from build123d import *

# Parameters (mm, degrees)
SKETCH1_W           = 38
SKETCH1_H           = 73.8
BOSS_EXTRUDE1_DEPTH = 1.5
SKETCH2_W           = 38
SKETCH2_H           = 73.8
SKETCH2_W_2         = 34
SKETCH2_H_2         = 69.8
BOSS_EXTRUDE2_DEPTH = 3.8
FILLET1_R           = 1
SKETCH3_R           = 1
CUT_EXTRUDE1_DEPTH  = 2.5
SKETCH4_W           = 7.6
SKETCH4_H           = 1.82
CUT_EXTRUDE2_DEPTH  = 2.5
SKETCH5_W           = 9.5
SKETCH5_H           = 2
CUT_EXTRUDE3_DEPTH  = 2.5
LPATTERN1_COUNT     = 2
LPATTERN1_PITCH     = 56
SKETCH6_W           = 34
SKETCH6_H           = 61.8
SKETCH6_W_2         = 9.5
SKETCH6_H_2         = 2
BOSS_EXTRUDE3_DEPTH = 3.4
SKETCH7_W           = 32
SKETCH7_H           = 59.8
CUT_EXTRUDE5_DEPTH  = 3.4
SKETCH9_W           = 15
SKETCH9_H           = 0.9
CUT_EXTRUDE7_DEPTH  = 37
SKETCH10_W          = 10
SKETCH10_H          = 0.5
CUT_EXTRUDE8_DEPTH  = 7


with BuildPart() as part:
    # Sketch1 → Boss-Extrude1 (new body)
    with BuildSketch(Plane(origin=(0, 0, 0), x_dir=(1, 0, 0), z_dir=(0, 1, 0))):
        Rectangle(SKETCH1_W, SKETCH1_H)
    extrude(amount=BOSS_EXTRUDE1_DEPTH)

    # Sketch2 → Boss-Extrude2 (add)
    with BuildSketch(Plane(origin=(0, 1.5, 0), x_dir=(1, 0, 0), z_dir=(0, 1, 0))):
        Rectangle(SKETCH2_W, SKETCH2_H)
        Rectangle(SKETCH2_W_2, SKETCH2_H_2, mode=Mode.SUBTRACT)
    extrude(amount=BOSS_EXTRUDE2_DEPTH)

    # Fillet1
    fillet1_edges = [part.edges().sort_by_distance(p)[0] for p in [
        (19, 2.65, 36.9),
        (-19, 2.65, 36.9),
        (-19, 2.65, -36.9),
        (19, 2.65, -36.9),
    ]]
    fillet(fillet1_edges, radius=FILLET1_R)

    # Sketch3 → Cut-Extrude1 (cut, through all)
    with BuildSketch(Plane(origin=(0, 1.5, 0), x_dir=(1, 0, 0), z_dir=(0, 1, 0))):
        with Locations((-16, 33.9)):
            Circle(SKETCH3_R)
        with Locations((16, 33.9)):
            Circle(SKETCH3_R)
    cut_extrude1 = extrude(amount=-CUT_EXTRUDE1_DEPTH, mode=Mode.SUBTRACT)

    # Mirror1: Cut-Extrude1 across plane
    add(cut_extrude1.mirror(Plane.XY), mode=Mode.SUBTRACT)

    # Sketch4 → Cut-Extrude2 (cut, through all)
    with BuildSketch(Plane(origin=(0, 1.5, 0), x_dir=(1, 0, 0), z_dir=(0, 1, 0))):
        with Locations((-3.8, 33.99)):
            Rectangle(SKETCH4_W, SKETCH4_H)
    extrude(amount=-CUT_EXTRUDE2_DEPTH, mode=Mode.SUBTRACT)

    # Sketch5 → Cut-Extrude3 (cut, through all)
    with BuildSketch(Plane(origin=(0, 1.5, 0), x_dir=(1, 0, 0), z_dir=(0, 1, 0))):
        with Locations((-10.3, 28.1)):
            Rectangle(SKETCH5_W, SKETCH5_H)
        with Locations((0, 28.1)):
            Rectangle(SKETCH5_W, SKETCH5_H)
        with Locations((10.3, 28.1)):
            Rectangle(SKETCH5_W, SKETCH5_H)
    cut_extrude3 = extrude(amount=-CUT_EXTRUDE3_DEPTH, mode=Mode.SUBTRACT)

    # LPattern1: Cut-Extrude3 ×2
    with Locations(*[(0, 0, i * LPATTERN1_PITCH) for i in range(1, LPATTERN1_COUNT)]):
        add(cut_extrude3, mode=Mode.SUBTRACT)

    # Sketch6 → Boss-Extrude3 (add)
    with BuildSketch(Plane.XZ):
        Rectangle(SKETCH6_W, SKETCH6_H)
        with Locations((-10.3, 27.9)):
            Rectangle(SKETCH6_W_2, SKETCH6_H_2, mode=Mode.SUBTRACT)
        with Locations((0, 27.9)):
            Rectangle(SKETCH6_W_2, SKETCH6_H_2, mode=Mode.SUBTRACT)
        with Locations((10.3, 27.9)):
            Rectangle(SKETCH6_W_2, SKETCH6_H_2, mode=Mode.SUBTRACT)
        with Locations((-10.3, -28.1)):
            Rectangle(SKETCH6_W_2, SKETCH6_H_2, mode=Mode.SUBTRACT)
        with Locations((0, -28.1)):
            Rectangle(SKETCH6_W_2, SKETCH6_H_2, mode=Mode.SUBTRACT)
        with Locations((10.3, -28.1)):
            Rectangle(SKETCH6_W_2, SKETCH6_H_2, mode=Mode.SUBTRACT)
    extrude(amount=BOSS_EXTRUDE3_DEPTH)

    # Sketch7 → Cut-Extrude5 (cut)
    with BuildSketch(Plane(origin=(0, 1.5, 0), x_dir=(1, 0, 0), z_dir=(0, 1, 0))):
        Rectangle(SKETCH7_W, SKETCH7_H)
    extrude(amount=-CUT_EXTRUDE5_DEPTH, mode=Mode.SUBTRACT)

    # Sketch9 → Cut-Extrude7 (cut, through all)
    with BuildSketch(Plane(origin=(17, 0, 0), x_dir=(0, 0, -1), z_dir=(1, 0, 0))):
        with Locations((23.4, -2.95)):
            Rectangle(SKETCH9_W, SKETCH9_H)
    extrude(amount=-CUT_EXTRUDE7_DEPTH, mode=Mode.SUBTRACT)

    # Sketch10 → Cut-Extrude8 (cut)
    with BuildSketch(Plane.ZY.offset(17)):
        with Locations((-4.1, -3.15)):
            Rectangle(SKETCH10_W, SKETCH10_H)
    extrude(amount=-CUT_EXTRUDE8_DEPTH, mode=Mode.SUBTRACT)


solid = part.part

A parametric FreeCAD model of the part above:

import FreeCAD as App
import Part
import Sketcher

V = App.Vector
Q = App.Units.Quantity


def edges_at(feature, points):
    """Names of the edges that pass closest to the given points."""
    edges = feature.Shape.Edges
    near = lambda p: min(range(len(edges)), key=lambda i: edges[i].distToShape(Part.Vertex(*p))[0])
    return sorted({f"Edge{near(p) + 1}" for p in points})

doc = App.newDocument("Part")
body = doc.addObject("PartDesign::Body", "Body")

sketch1 = doc.addObject("Sketcher::SketchObject", "Sketch")
body.addObject(sketch1)
sketch1.AttachmentSupport = (doc.XZ_Plane, [""])
sketch1.MapMode = "FlatFace"
sketch1.addGeometry(Part.LineSegment(V(-19, -37, 0), V(-19, 37, 0)), False)
sketch1.addGeometry(Part.LineSegment(V(-19, 37, 0), V(19, 37, 0)), False)
sketch1.addGeometry(Part.LineSegment(V(19, 37, 0), V(19, -37, 0)), False)
sketch1.addGeometry(Part.LineSegment(V(19, -37, 0), V(-19, -37, 0)), False)
sketch1.addConstraint(Sketcher.Constraint("Coincident", 0, 2, 1, 1))
sketch1.addConstraint(Sketcher.Constraint("Coincident", 1, 2, 2, 1))
sketch1.addConstraint(Sketcher.Constraint("Coincident", 2, 2, 3, 1))
sketch1.addConstraint(Sketcher.Constraint("Coincident", 3, 2, 0, 1))
sketch1.addConstraint(Sketcher.Constraint("Vertical", 0))
sketch1.addConstraint(Sketcher.Constraint("Horizontal", 1))
sketch1.addConstraint(Sketcher.Constraint("Vertical", 2))
sketch1.addConstraint(Sketcher.Constraint("Horizontal", 3))
sketch1.addConstraint(Sketcher.Constraint("Symmetric", 0, 2, 2, 2, -1, 1))
sketch1.addConstraint(Sketcher.Constraint("DistanceX", 1, 1, 1, 2, Q("38 mm")))
sketch1.addConstraint(Sketcher.Constraint("DistanceY", 0, 1, 0, 2, Q("73.8 mm")))
pad1 = doc.addObject("PartDesign::Pad", "Pad")
body.addObject(pad1)
pad1.Profile = sketch1
pad1.Length = 1.5
pad1.Reversed = True

sketch2 = doc.addObject("Sketcher::SketchObject", "Sketch001")
body.addObject(sketch2)
sketch2.AttachmentSupport = (doc.XZ_Plane, [""])
sketch2.MapMode = "FlatFace"
sketch2.AttachmentOffset = App.Placement(V(0, 0, -1.5), App.Rotation())
sketch2.addGeometry(Part.LineSegment(V(-19, -37, 0), V(-19, 37, 0)), False)
sketch2.addGeometry(Part.LineSegment(V(-19, 37, 0), V(19, 37, 0)), False)
sketch2.addGeometry(Part.LineSegment(V(19, 37, 0), V(19, -37, 0)), False)
sketch2.addGeometry(Part.LineSegment(V(19, -37, 0), V(-19, -37, 0)), False)
sketch2.addGeometry(Part.LineSegment(V(17, 35, 0), V(-17, 35, 0)), False)
sketch2.addGeometry(Part.LineSegment(V(-17, 35, 0), V(-17, -35, 0)), False)
sketch2.addGeometry(Part.LineSegment(V(-17, -35, 0), V(17, -35, 0)), False)
sketch2.addGeometry(Part.LineSegment(V(17, -35, 0), V(17, 35, 0)), False)
sketch2.addConstraint(Sketcher.Constraint("Coincident", 0, 2, 1, 1))
sketch2.addConstraint(Sketcher.Constraint("Coincident", 1, 2, 2, 1))
sketch2.addConstraint(Sketcher.Constraint("Coincident", 2, 2, 3, 1))
sketch2.addConstraint(Sketcher.Constraint("Coincident", 3, 2, 0, 1))
sketch2.addConstraint(Sketcher.Constraint("Coincident", 4, 2, 5, 1))
sketch2.addConstraint(Sketcher.Constraint("Coincident", 5, 2, 6, 1))
sketch2.addConstraint(Sketcher.Constraint("Coincident", 6, 2, 7, 1))
sketch2.addConstraint(Sketcher.Constraint("Coincident", 7, 2, 4, 1))
sketch2.addConstraint(Sketcher.Constraint("Vertical", 0))
sketch2.addConstraint(Sketcher.Constraint("Horizontal", 1))
sketch2.addConstraint(Sketcher.Constraint("Vertical", 2))
sketch2.addConstraint(Sketcher.Constraint("Horizontal", 3))
sketch2.addConstraint(Sketcher.Constraint("Horizontal", 4))
sketch2.addConstraint(Sketcher.Constraint("Vertical", 5))
sketch2.addConstraint(Sketcher.Constraint("Horizontal", 6))
sketch2.addConstraint(Sketcher.Constraint("Vertical", 7))
sketch2.addConstraint(Sketcher.Constraint("Symmetric", 0, 2, 2, 2, -1, 1))
sketch2.addConstraint(Sketcher.Constraint("Symmetric", 4, 2, 6, 2, -1, 1))
sketch2.addConstraint(Sketcher.Constraint("DistanceX", 1, 1, 1, 2, Q("38 mm")))
sketch2.addConstraint(Sketcher.Constraint("DistanceX", 4, 2, 4, 1, Q("34 mm")))
sketch2.addConstraint(Sketcher.Constraint("DistanceY", 0, 1, 0, 2, Q("73.8 mm")))
sketch2.addConstraint(Sketcher.Constraint("DistanceY", 5, 2, 5, 1, Q("69.8 mm")))
pad2 = doc.addObject("PartDesign::Pad", "Pad001")
body.addObject(pad2)
pad2.Profile = sketch2
pad2.Length = 3.8
pad2.Reversed = True
doc.recompute()

fillet = doc.addObject("PartDesign::Fillet", "Fillet")
body.addObject(fillet)
fillet.Base = (pad2, edges_at(pad2, [
    (19, 2.65, 36.9),
    (-19, 2.65, 36.9),
    (-19, 2.65, -36.9),
    (19, 2.65, -36.9),
]))
fillet.Radius = 1

sketch3 = doc.addObject("Sketcher::SketchObject", "Sketch002")
body.addObject(sketch3)
sketch3.AttachmentSupport = (doc.XZ_Plane, [""])
sketch3.MapMode = "FlatFace"
sketch3.AttachmentOffset = App.Placement(V(0, 0, -1.5), App.Rotation())
sketch3.addGeometry(Part.Circle(V(-16, -33.9, 0), V(0, 0, 1), 1), False)
sketch3.addGeometry(Part.Circle(V(16, -33.9, 0), V(0, 0, 1), 1), False)
sketch3.addConstraint(Sketcher.Constraint("Equal", 0, 1))
sketch3.addConstraint(Sketcher.Constraint("Symmetric", 0, 3, 1, 3, -2))
sketch3.addConstraint(Sketcher.Constraint("Diameter", 0, Q("2 mm")))
sketch3.addConstraint(Sketcher.Constraint("DistanceX", 0, 3, -1, 1, Q("16 mm")))
sketch3.addConstraint(Sketcher.Constraint("DistanceY", 0, 3, -1, 1, Q("33.9 mm")))
pocket1 = doc.addObject("PartDesign::Pocket", "Pocket")
body.addObject(pocket1)
pocket1.Profile = sketch3
pocket1.Type = "ThroughAll"
pocket1.Reversed = True
doc.recompute()

mirrored = doc.addObject("PartDesign::Mirrored", "Mirrored")
body.addObject(mirrored)
mirrored.Originals = [pocket1]
mirrored.MirrorPlane = (doc.XY_Plane, [""])
body.Tip = mirrored

sketch4 = doc.addObject("Sketcher::SketchObject", "Sketch003")
body.addObject(sketch4)
sketch4.AttachmentSupport = (doc.XZ_Plane, [""])
sketch4.MapMode = "FlatFace"
sketch4.AttachmentOffset = App.Placement(V(0, 0, -1.5), App.Rotation())
sketch4.addGeometry(Part.LineSegment(V(-7.6, -34.9, 0), V(-7.6, -33.1, 0)), False)
sketch4.addGeometry(Part.LineSegment(V(-7.6, -33.1, 0), V(0, -33.1, 0)), False)
sketch4.addGeometry(Part.LineSegment(V(0, -33.1, 0), V(0, -34.9, 0)), False)
sketch4.addGeometry(Part.LineSegment(V(0, -34.9, 0), V(-7.6, -34.9, 0)), False)
sketch4.addConstraint(Sketcher.Constraint("Coincident", 0, 2, 1, 1))
sketch4.addConstraint(Sketcher.Constraint("Coincident", 1, 2, 2, 1))
sketch4.addConstraint(Sketcher.Constraint("Coincident", 2, 2, 3, 1))
sketch4.addConstraint(Sketcher.Constraint("Coincident", 3, 2, 0, 1))
sketch4.addConstraint(Sketcher.Constraint("Vertical", 0))
sketch4.addConstraint(Sketcher.Constraint("Horizontal", 1))
sketch4.addConstraint(Sketcher.Constraint("Vertical", 2))
sketch4.addConstraint(Sketcher.Constraint("Horizontal", 3))
sketch4.addConstraint(Sketcher.Constraint("PointOnObject", 1, 2, -2))
sketch4.addConstraint(Sketcher.Constraint("DistanceX", 1, 1, 1, 2, Q("7.6 mm")))
sketch4.addConstraint(Sketcher.Constraint("DistanceY", 0, 1, 0, 2, Q("1.82 mm")))
sketch4.addConstraint(Sketcher.Constraint("DistanceY", 2, 2, -1, 1, Q("34.9 mm")))
pocket2 = doc.addObject("PartDesign::Pocket", "Pocket001")
body.addObject(pocket2)
pocket2.Profile = sketch4
pocket2.Type = "ThroughAll"
pocket2.Reversed = True

sketch5 = doc.addObject("Sketcher::SketchObject", "Sketch004")
body.addObject(sketch5)
sketch5.AttachmentSupport = (doc.XZ_Plane, [""])
sketch5.MapMode = "FlatFace"
sketch5.AttachmentOffset = App.Placement(V(0, 0, -1.5), App.Rotation())
sketch5.addGeometry(Part.LineSegment(V(-15.1, -29.1, 0), V(-15.1, -27.1, 0)), False)
sketch5.addGeometry(Part.LineSegment(V(-15.1, -27.1, 0), V(-5.5, -27.1, 0)), False)
sketch5.addGeometry(Part.LineSegment(V(-5.5, -27.1, 0), V(-5.5, -29.1, 0)), False)
sketch5.addGeometry(Part.LineSegment(V(-5.5, -29.1, 0), V(-15.1, -29.1, 0)), False)
sketch5.addGeometry(Part.LineSegment(V(-4.8, -29.1, 0), V(-4.8, -27.1, 0)), False)
sketch5.addGeometry(Part.LineSegment(V(-4.8, -27.1, 0), V(4.8, -27.1, 0)), False)
sketch5.addGeometry(Part.LineSegment(V(4.8, -27.1, 0), V(4.8, -29.1, 0)), False)
sketch5.addGeometry(Part.LineSegment(V(4.8, -29.1, 0), V(-4.8, -29.1, 0)), False)
sketch5.addGeometry(Part.LineSegment(V(5.5, -29.1, 0), V(5.5, -27.1, 0)), False)
sketch5.addGeometry(Part.LineSegment(V(5.5, -27.1, 0), V(15.1, -27.1, 0)), False)
sketch5.addGeometry(Part.LineSegment(V(15.1, -27.1, 0), V(15.1, -29.1, 0)), False)
sketch5.addGeometry(Part.LineSegment(V(15.1, -29.1, 0), V(5.5, -29.1, 0)), False)
sketch5.addConstraint(Sketcher.Constraint("Coincident", 0, 2, 1, 1))
sketch5.addConstraint(Sketcher.Constraint("Coincident", 1, 2, 2, 1))
sketch5.addConstraint(Sketcher.Constraint("Coincident", 2, 2, 3, 1))
sketch5.addConstraint(Sketcher.Constraint("Coincident", 3, 2, 0, 1))
sketch5.addConstraint(Sketcher.Constraint("Coincident", 4, 2, 5, 1))
sketch5.addConstraint(Sketcher.Constraint("Coincident", 5, 2, 6, 1))
sketch5.addConstraint(Sketcher.Constraint("Coincident", 6, 2, 7, 1))
sketch5.addConstraint(Sketcher.Constraint("Coincident", 7, 2, 4, 1))
sketch5.addConstraint(Sketcher.Constraint("Coincident", 8, 2, 9, 1))
sketch5.addConstraint(Sketcher.Constraint("Coincident", 9, 2, 10, 1))
sketch5.addConstraint(Sketcher.Constraint("Coincident", 10, 2, 11, 1))
sketch5.addConstraint(Sketcher.Constraint("Coincident", 11, 2, 8, 1))
sketch5.addConstraint(Sketcher.Constraint("Vertical", 0))
sketch5.addConstraint(Sketcher.Constraint("Horizontal", 1))
sketch5.addConstraint(Sketcher.Constraint("Vertical", 2))
sketch5.addConstraint(Sketcher.Constraint("Horizontal", 3))
sketch5.addConstraint(Sketcher.Constraint("Vertical", 4))
sketch5.addConstraint(Sketcher.Constraint("Horizontal", 5))
sketch5.addConstraint(Sketcher.Constraint("Vertical", 6))
sketch5.addConstraint(Sketcher.Constraint("Horizontal", 7))
sketch5.addConstraint(Sketcher.Constraint("Vertical", 8))
sketch5.addConstraint(Sketcher.Constraint("Horizontal", 9))
sketch5.addConstraint(Sketcher.Constraint("Vertical", 10))
sketch5.addConstraint(Sketcher.Constraint("Horizontal", 11))
sketch5.addConstraint(Sketcher.Constraint("Symmetric", 1, 2, 8, 2, -2))
sketch5.addConstraint(Sketcher.Constraint("Symmetric", 3, 2, 10, 2, -2))
sketch5.addConstraint(Sketcher.Constraint("Horizontal", 1, 2, 4, 2))
sketch5.addConstraint(Sketcher.Constraint("Horizontal", 3, 2, 6, 2))
sketch5.addConstraint(Sketcher.Constraint("Equal", 3, 5))
sketch5.addConstraint(Sketcher.Constraint("DistanceY", 0, 1, 0, 2, Q("2 mm")))
sketch5.addConstraint(Sketcher.Constraint("DistanceX", 1, 1, 1, 2, Q("9.5 mm")))
sketch5.addConstraint(Sketcher.Constraint("DistanceY", 0, 2, -1, 1, Q("27.1 mm")))
sketch5.addConstraint(Sketcher.Constraint("DistanceX", 1, 2, 4, 2, Q("0.8 mm")))
sketch5.addConstraint(Sketcher.Constraint("DistanceX", 5, 2, 8, 2, Q("0.8 mm")))
pocket3 = doc.addObject("PartDesign::Pocket", "Pocket002")
body.addObject(pocket3)
pocket3.Profile = sketch5
pocket3.Type = "ThroughAll"
pocket3.Reversed = True
doc.recompute()

linearpattern = doc.addObject("PartDesign::LinearPattern", "LinearPattern")
body.addObject(linearpattern)
linearpattern.Originals = [pocket3]
linearpattern.Direction = (doc.Z_Axis, [""])
linearpattern.Mode = "offset"
linearpattern.Offset = 56
linearpattern.Occurrences = 2
body.Tip = linearpattern

sketch6 = doc.addObject("Sketcher::SketchObject", "Sketch005")
body.addObject(sketch6)
sketch6.AttachmentSupport = (doc.XZ_Plane, [""])
sketch6.MapMode = "FlatFace"
sketch6.addGeometry(Part.LineSegment(V(-17, 30.9, 0), V(-17, -30.9, 0)), False)
sketch6.addGeometry(Part.LineSegment(V(-17, -30.9, 0), V(17, -30.9, 0)), False)
sketch6.addGeometry(Part.LineSegment(V(17, -30.9, 0), V(17, 30.9, 0)), False)
sketch6.addGeometry(Part.LineSegment(V(17, 30.9, 0), V(-17, 30.9, 0)), False)
sketch6.addGeometry(Part.LineSegment(V(-5.5, -29.1, 0), V(-15.1, -29.1, 0)), False)
sketch6.addGeometry(Part.LineSegment(V(-15.1, -29.1, 0), V(-15.1, -27.1, 0)), False)
sketch6.addGeometry(Part.LineSegment(V(-15.1, -27.1, 0), V(-5.5, -27.1, 0)), False)
sketch6.addGeometry(Part.LineSegment(V(-5.5, -27.1, 0), V(-5.5, -29.1, 0)), False)
sketch6.addGeometry(Part.LineSegment(V(4.8, -29.1, 0), V(-4.8, -29.1, 0)), False)
sketch6.addGeometry(Part.LineSegment(V(-4.8, -29.1, 0), V(-4.8, -27.1, 0)), False)
sketch6.addGeometry(Part.LineSegment(V(-4.8, -27.1, 0), V(4.8, -27.1, 0)), False)
sketch6.addGeometry(Part.LineSegment(V(4.8, -27.1, 0), V(4.8, -29.1, 0)), False)
sketch6.addGeometry(Part.LineSegment(V(15.1, -29.1, 0), V(5.5, -29.1, 0)), False)
sketch6.addGeometry(Part.LineSegment(V(5.5, -29.1, 0), V(5.5, -27.1, 0)), False)
sketch6.addGeometry(Part.LineSegment(V(5.5, -27.1, 0), V(15.1, -27.1, 0)), False)
sketch6.addGeometry(Part.LineSegment(V(15.1, -27.1, 0), V(15.1, -29.1, 0)), False)
sketch6.addGeometry(Part.LineSegment(V(-5.5, 26.9, 0), V(-15.1, 26.9, 0)), False)
sketch6.addGeometry(Part.LineSegment(V(-15.1, 26.9, 0), V(-15.1, 28.9, 0)), False)
sketch6.addGeometry(Part.LineSegment(V(-15.1, 28.9, 0), V(-5.5, 28.9, 0)), False)
sketch6.addGeometry(Part.LineSegment(V(-5.5, 28.9, 0), V(-5.5, 26.9, 0)), False)
sketch6.addGeometry(Part.LineSegment(V(4.8, 26.9, 0), V(-4.8, 26.9, 0)), False)
sketch6.addGeometry(Part.LineSegment(V(-4.8, 26.9, 0), V(-4.8, 28.9, 0)), False)
sketch6.addGeometry(Part.LineSegment(V(-4.8, 28.9, 0), V(4.8, 28.9, 0)), False)
sketch6.addGeometry(Part.LineSegment(V(4.8, 28.9, 0), V(4.8, 26.9, 0)), False)
sketch6.addGeometry(Part.LineSegment(V(15.1, 26.9, 0), V(5.5, 26.9, 0)), False)
sketch6.addGeometry(Part.LineSegment(V(5.5, 26.9, 0), V(5.5, 28.9, 0)), False)
sketch6.addGeometry(Part.LineSegment(V(5.5, 28.9, 0), V(15.1, 28.9, 0)), False)
sketch6.addGeometry(Part.LineSegment(V(15.1, 28.9, 0), V(15.1, 26.9, 0)), False)
sketch6.addConstraint(Sketcher.Constraint("Coincident", 0, 2, 1, 1))
sketch6.addConstraint(Sketcher.Constraint("Coincident", 1, 2, 2, 1))
sketch6.addConstraint(Sketcher.Constraint("Coincident", 2, 2, 3, 1))
sketch6.addConstraint(Sketcher.Constraint("Coincident", 3, 2, 0, 1))
sketch6.addConstraint(Sketcher.Constraint("Coincident", 4, 2, 5, 1))
sketch6.addConstraint(Sketcher.Constraint("Coincident", 5, 2, 6, 1))
sketch6.addConstraint(Sketcher.Constraint("Coincident", 6, 2, 7, 1))
sketch6.addConstraint(Sketcher.Constraint("Coincident", 7, 2, 4, 1))
sketch6.addConstraint(Sketcher.Constraint("Coincident", 8, 2, 9, 1))
sketch6.addConstraint(Sketcher.Constraint("Coincident", 9, 2, 10, 1))
sketch6.addConstraint(Sketcher.Constraint("Coincident", 10, 2, 11, 1))
sketch6.addConstraint(Sketcher.Constraint("Coincident", 11, 2, 8, 1))
sketch6.addConstraint(Sketcher.Constraint("Coincident", 12, 2, 13, 1))
sketch6.addConstraint(Sketcher.Constraint("Coincident", 13, 2, 14, 1))
sketch6.addConstraint(Sketcher.Constraint("Coincident", 14, 2, 15, 1))
sketch6.addConstraint(Sketcher.Constraint("Coincident", 15, 2, 12, 1))
sketch6.addConstraint(Sketcher.Constraint("Coincident", 16, 2, 17, 1))
sketch6.addConstraint(Sketcher.Constraint("Coincident", 17, 2, 18, 1))
sketch6.addConstraint(Sketcher.Constraint("Coincident", 18, 2, 19, 1))
sketch6.addConstraint(Sketcher.Constraint("Coincident", 19, 2, 16, 1))
sketch6.addConstraint(Sketcher.Constraint("Coincident", 20, 2, 21, 1))
sketch6.addConstraint(Sketcher.Constraint("Coincident", 21, 2, 22, 1))
sketch6.addConstraint(Sketcher.Constraint("Coincident", 22, 2, 23, 1))
sketch6.addConstraint(Sketcher.Constraint("Coincident", 23, 2, 20, 1))
sketch6.addConstraint(Sketcher.Constraint("Coincident", 24, 2, 25, 1))
sketch6.addConstraint(Sketcher.Constraint("Coincident", 25, 2, 26, 1))
sketch6.addConstraint(Sketcher.Constraint("Coincident", 26, 2, 27, 1))
sketch6.addConstraint(Sketcher.Constraint("Coincident", 27, 2, 24, 1))
sketch6.addConstraint(Sketcher.Constraint("Vertical", 0))
sketch6.addConstraint(Sketcher.Constraint("Horizontal", 1))
sketch6.addConstraint(Sketcher.Constraint("Vertical", 2))
sketch6.addConstraint(Sketcher.Constraint("Horizontal", 3))
sketch6.addConstraint(Sketcher.Constraint("Horizontal", 4))
sketch6.addConstraint(Sketcher.Constraint("Vertical", 5))
sketch6.addConstraint(Sketcher.Constraint("Horizontal", 6))
sketch6.addConstraint(Sketcher.Constraint("Vertical", 7))
sketch6.addConstraint(Sketcher.Constraint("Horizontal", 8))
sketch6.addConstraint(Sketcher.Constraint("Vertical", 9))
sketch6.addConstraint(Sketcher.Constraint("Horizontal", 10))
sketch6.addConstraint(Sketcher.Constraint("Vertical", 11))
sketch6.addConstraint(Sketcher.Constraint("Horizontal", 12))
sketch6.addConstraint(Sketcher.Constraint("Vertical", 13))
sketch6.addConstraint(Sketcher.Constraint("Horizontal", 14))
sketch6.addConstraint(Sketcher.Constraint("Vertical", 15))
sketch6.addConstraint(Sketcher.Constraint("Horizontal", 16))
sketch6.addConstraint(Sketcher.Constraint("Vertical", 17))
sketch6.addConstraint(Sketcher.Constraint("Horizontal", 18))
sketch6.addConstraint(Sketcher.Constraint("Vertical", 19))
sketch6.addConstraint(Sketcher.Constraint("Horizontal", 20))
sketch6.addConstraint(Sketcher.Constraint("Vertical", 21))
sketch6.addConstraint(Sketcher.Constraint("Horizontal", 22))
sketch6.addConstraint(Sketcher.Constraint("Vertical", 23))
sketch6.addConstraint(Sketcher.Constraint("Horizontal", 24))
sketch6.addConstraint(Sketcher.Constraint("Vertical", 25))
sketch6.addConstraint(Sketcher.Constraint("Horizontal", 26))
sketch6.addConstraint(Sketcher.Constraint("Vertical", 27))
sketch6.addConstraint(Sketcher.Constraint("Symmetric", 0, 2, 2, 2, -1, 1))
sketch6.addConstraint(Sketcher.Constraint("Symmetric", 7, 2, 12, 2, -2))
sketch6.addConstraint(Sketcher.Constraint("Symmetric", 5, 2, 14, 2, -2))
sketch6.addConstraint(Sketcher.Constraint("Symmetric", 19, 2, 24, 2, -2))
sketch6.addConstraint(Sketcher.Constraint("Symmetric", 17, 2, 26, 2, -2))
sketch6.addConstraint(Sketcher.Constraint("Horizontal", 7, 2, 8, 2))
sketch6.addConstraint(Sketcher.Constraint("Horizontal", 6, 2, 9, 2))
sketch6.addConstraint(Sketcher.Constraint("Horizontal", 19, 2, 20, 2))
sketch6.addConstraint(Sketcher.Constraint("Horizontal", 18, 2, 21, 2))
sketch6.addConstraint(Sketcher.Constraint("Vertical", 5, 2, 16, 2))
sketch6.addConstraint(Sketcher.Constraint("Vertical", 7, 2, 18, 2))
sketch6.addConstraint(Sketcher.Constraint("Vertical", 9, 2, 20, 2))
sketch6.addConstraint(Sketcher.Constraint("Vertical", 11, 2, 22, 2))
sketch6.addConstraint(Sketcher.Constraint("Equal", 6, 8))
sketch6.addConstraint(Sketcher.Constraint("Equal", 15, 17))
sketch6.addConstraint(Sketcher.Constraint("DistanceX", 1, 1, 1, 2, Q("34 mm")))
sketch6.addConstraint(Sketcher.Constraint("DistanceY", 5, 1, 5, 2, Q("2 mm")))
sketch6.addConstraint(Sketcher.Constraint("DistanceX", 4, 2, 4, 1, Q("9.5 mm")))
sketch6.addConstraint(Sketcher.Constraint("DistanceY", 0, 2, 0, 1, Q("61.8 mm")))
sketch6.addConstraint(Sketcher.Constraint("DistanceY", 4, 2, 3, 2, Q("60 mm")))
sketch6.addConstraint(Sketcher.Constraint("DistanceY", 16, 2, 3, 2, Q("4 mm")))
sketch6.addConstraint(Sketcher.Constraint("DistanceX", 7, 2, 8, 2, Q("0.8 mm")))
sketch6.addConstraint(Sketcher.Constraint("DistanceX", 11, 2, 12, 2, Q("0.8 mm")))
pad3 = doc.addObject("PartDesign::Pad", "Pad002")
body.addObject(pad3)
pad3.Profile = sketch6
pad3.Length = 3.4

sketch7 = doc.addObject("Sketcher::SketchObject", "Sketch006")
body.addObject(sketch7)
sketch7.AttachmentSupport = (doc.XZ_Plane, [""])
sketch7.MapMode = "FlatFace"
sketch7.AttachmentOffset = App.Placement(V(0, 0, -1.5), App.Rotation())
sketch7.addGeometry(Part.LineSegment(V(-16, -30, 0), V(-16, 30, 0)), False)
sketch7.addGeometry(Part.LineSegment(V(-16, 30, 0), V(16, 30, 0)), False)
sketch7.addGeometry(Part.LineSegment(V(16, 30, 0), V(16, -30, 0)), False)
sketch7.addGeometry(Part.LineSegment(V(16, -30, 0), V(-16, -30, 0)), False)
sketch7.addConstraint(Sketcher.Constraint("Coincident", 0, 2, 1, 1))
sketch7.addConstraint(Sketcher.Constraint("Coincident", 1, 2, 2, 1))
sketch7.addConstraint(Sketcher.Constraint("Coincident", 2, 2, 3, 1))
sketch7.addConstraint(Sketcher.Constraint("Coincident", 3, 2, 0, 1))
sketch7.addConstraint(Sketcher.Constraint("Vertical", 0))
sketch7.addConstraint(Sketcher.Constraint("Horizontal", 1))
sketch7.addConstraint(Sketcher.Constraint("Vertical", 2))
sketch7.addConstraint(Sketcher.Constraint("Horizontal", 3))
sketch7.addConstraint(Sketcher.Constraint("Symmetric", 0, 2, 2, 2, -1, 1))
sketch7.addConstraint(Sketcher.Constraint("DistanceX", 1, 1, 1, 2, Q("32 mm")))
sketch7.addConstraint(Sketcher.Constraint("DistanceY", 0, 1, 0, 2, Q("59.8 mm")))
pocket4 = doc.addObject("PartDesign::Pocket", "Pocket003")
body.addObject(pocket4)
pocket4.Profile = sketch7
pocket4.Length = 3.4
pocket4.Reversed = True

sketch8 = doc.addObject("Sketcher::SketchObject", "Sketch007")
body.addObject(sketch8)
sketch8.AttachmentSupport = (doc.YZ_Plane, [""])
sketch8.MapMode = "FlatFace"
sketch8.AttachmentOffset = App.Placement(V(0, 0, 17), App.Rotation())
sketch8.addGeometry(Part.LineSegment(V(-2.5, -15.9, 0), V(-3.4, -15.9, 0)), False)
sketch8.addGeometry(Part.LineSegment(V(-3.4, -15.9, 0), V(-3.4, -30.9, 0)), False)
sketch8.addGeometry(Part.LineSegment(V(-3.4, -30.9, 0), V(-2.5, -30.9, 0)), False)
sketch8.addGeometry(Part.LineSegment(V(-2.5, -30.9, 0), V(-2.5, -15.9, 0)), False)
sketch8.addConstraint(Sketcher.Constraint("Coincident", 0, 2, 1, 1))
sketch8.addConstraint(Sketcher.Constraint("Coincident", 1, 2, 2, 1))
sketch8.addConstraint(Sketcher.Constraint("Coincident", 2, 2, 3, 1))
sketch8.addConstraint(Sketcher.Constraint("Coincident", 3, 2, 0, 1))
sketch8.addConstraint(Sketcher.Constraint("Horizontal", 0))
sketch8.addConstraint(Sketcher.Constraint("Vertical", 1))
sketch8.addConstraint(Sketcher.Constraint("Horizontal", 2))
sketch8.addConstraint(Sketcher.Constraint("Vertical", 3))
sketch8.addConstraint(Sketcher.Constraint("DistanceY", 1, 2, 1, 1, Q("15 mm")))
sketch8.addConstraint(Sketcher.Constraint("DistanceX", 0, 2, 0, 1, Q("0.9 mm")))
sketch8.addConstraint(Sketcher.Constraint("DistanceX", 0, 2, -1, 1, Q("3.4 mm")))
sketch8.addConstraint(Sketcher.Constraint("DistanceY", 0, 2, -1, 1, Q("15.9 mm")))
pocket5 = doc.addObject("PartDesign::Pocket", "Pocket004")
body.addObject(pocket5)
pocket5.Profile = sketch8
pocket5.Type = "ThroughAll"

sketch9 = doc.addObject("Sketcher::SketchObject", "Sketch008")
body.addObject(sketch9)
sketch9.AttachmentSupport = (doc.YZ_Plane, [""])
sketch9.MapMode = "FlatFace"
sketch9.AttachmentOffset = App.Placement(V(0, 0, -17), App.Rotation())
sketch9.addGeometry(Part.LineSegment(V(-2.9, -9.1, 0), V(-3.4, -9.1, 0)), False)
sketch9.addGeometry(Part.LineSegment(V(-3.4, -9.1, 0), V(-3.4, 0.9, 0)), False)
sketch9.addGeometry(Part.LineSegment(V(-3.4, 0.9, 0), V(-2.9, 0.9, 0)), False)
sketch9.addGeometry(Part.LineSegment(V(-2.9, 0.9, 0), V(-2.9, -9.1, 0)), False)
sketch9.addConstraint(Sketcher.Constraint("Coincident", 0, 2, 1, 1))
sketch9.addConstraint(Sketcher.Constraint("Coincident", 1, 2, 2, 1))
sketch9.addConstraint(Sketcher.Constraint("Coincident", 2, 2, 3, 1))
sketch9.addConstraint(Sketcher.Constraint("Coincident", 3, 2, 0, 1))
sketch9.addConstraint(Sketcher.Constraint("Horizontal", 0))
sketch9.addConstraint(Sketcher.Constraint("Vertical", 1))
sketch9.addConstraint(Sketcher.Constraint("Horizontal", 2))
sketch9.addConstraint(Sketcher.Constraint("Vertical", 3))
sketch9.addConstraint(Sketcher.Constraint("DistanceY", 1, 1, 1, 2, Q("10 mm")))
sketch9.addConstraint(Sketcher.Constraint("DistanceX", 0, 2, 0, 1, Q("0.5 mm")))
sketch9.addConstraint(Sketcher.Constraint("DistanceX", 0, 2, -1, 1, Q("3.4 mm")))
sketch9.addConstraint(Sketcher.Constraint("DistanceY", 0, 2, -1, 1, Q("9.1 mm")))
pocket6 = doc.addObject("PartDesign::Pocket", "Pocket005")
body.addObject(pocket6)
pocket6.Profile = sketch9
pocket6.Length = 7
pocket6.Reversed = True

doc.recompute()
